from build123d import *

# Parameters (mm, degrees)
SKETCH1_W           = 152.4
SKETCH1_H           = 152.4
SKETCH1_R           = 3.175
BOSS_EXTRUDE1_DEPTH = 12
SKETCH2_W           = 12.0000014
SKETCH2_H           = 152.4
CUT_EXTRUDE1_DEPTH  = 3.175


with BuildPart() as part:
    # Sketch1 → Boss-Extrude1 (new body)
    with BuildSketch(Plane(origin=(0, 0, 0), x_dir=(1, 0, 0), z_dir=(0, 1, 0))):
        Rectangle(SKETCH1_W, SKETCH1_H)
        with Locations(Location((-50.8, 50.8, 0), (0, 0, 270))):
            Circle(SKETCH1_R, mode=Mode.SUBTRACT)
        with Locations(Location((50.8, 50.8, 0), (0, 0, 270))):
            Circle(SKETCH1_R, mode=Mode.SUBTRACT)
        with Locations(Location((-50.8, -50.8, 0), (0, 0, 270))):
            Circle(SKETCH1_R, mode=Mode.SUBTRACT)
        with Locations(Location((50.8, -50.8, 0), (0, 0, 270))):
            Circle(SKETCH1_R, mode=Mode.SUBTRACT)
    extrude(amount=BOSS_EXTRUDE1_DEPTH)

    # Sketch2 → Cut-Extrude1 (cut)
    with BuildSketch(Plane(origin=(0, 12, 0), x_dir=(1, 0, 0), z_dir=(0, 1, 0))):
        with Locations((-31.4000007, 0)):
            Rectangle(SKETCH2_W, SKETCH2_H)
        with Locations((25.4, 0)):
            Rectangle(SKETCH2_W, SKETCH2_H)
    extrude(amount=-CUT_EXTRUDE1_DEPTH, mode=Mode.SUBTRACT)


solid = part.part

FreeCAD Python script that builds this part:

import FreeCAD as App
import Part
import Sketcher

V = App.Vector
Q = App.Units.Quantity

doc = App.newDocument("Part")
body = doc.addObject("PartDesign::Body", "Body")

# Sketch on XZ plane
sketch1 = body.newObject("Sketcher::SketchObject", "Sketch")
sketch1.AttachmentSupport = (doc.getObject("XZ_Plane"), [""])
sketch1.MapMode = "FlatFace"
sketch1.addGeometry(Part.LineSegment(V(-76.2, -76.2, 0), V(-76.2, 76.2, 0)), False)
sketch1.addGeometry(Part.LineSegment(V(-76.2, 76.2, 0), V(76.2, 76.2, 0)), False)
sketch1.addGeometry(Part.LineSegment(V(76.2, 76.2, 0), V(76.2, -76.2, 0)), False)
sketch1.addGeometry(Part.LineSegment(V(76.2, -76.2, 0), V(-76.2, -76.2, 0)), False)
sketch1.addGeometry(Part.Circle(V(-50.8, 50.8, 0), V(0, 0, 1), 3.2), False)
sketch1.addGeometry(Part.Circle(V(50.8, 50.8, 0), V(0, 0, 1), 3.2), False)
sketch1.addGeometry(Part.Circle(V(-50.8, -50.8, 0), V(0, 0, 1), 3.2), False)
sketch1.addGeometry(Part.Circle(V(50.8, -50.8, 0), V(0, 0, 1), 3.2), False)
sketch1.addConstraint(Sketcher.Constraint("Coincident", 0, 2, 1, 1))
sketch1.addConstraint(Sketcher.Constraint("Coincident", 1, 2, 2, 1))
sketch1.addConstraint(Sketcher.Constraint("Coincident", 2, 2, 3, 1))
sketch1.addConstraint(Sketcher.Constraint("Coincident", 3, 2, 0, 1))
sketch1.addConstraint(Sketcher.Constraint("Vertical", 0))
sketch1.addConstraint(Sketcher.Constraint("Horizontal", 1))
sketch1.addConstraint(Sketcher.Constraint("Vertical", 2))
sketch1.addConstraint(Sketcher.Constraint("Horizontal", 3))
sketch1.addConstraint(Sketcher.Constraint("Equal", 4, 5))
sketch1.addConstraint(Sketcher.Constraint("Equal", 5, 6))
sketch1.addConstraint(Sketcher.Constraint("Equal", 6, 7))
sketch1.addConstraint(Sketcher.Constraint("Symmetric", 5, 3, 6, 3, -1, 1))
sketch1.addConstraint(Sketcher.Constraint("Symmetric", 4, 3, 7, 3, -1, 1))
sketch1.addConstraint(Sketcher.Constraint("Symmetric", 0, 2, 2, 2, -1, 1))
sketch1.addConstraint(Sketcher.Constraint("Symmetric", 4, 3, 5, 3, -2))
sketch1.addConstraint(Sketcher.Constraint("Equal", 3, 0))
sketch1.addConstraint(Sketcher.Constraint("Diameter", 4, Q("0.25 in")))
sketch1.addConstraint(Sketcher.Constraint("DistanceX", 1, 1, 1, 2, Q("6 in")))
sketch1.addConstraint(Sketcher.Constraint("DistanceX", 4, 3, -1, 1, Q("2 in")))
sketch1.addConstraint(Sketcher.Constraint("DistanceY", -1, 1, 4, 3, Q("2 in")))
pad1 = body.newObject("PartDesign::Pad", "Pad")
pad1.Profile = sketch1
pad1.Length = 12
pad1.Reversed = True

# Sketch on XZ plane
sketch2 = body.newObject("Sketcher::SketchObject", "Sketch001")
sketch2.AttachmentSupport = (doc.getObject("XZ_Plane"), [""])
sketch2.MapMode = "FlatFace"
sketch2.AttachmentOffset = App.Placement(V(0, 0, -12), App.Rotation())
sketch2.addGeometry(Part.LineSegment(V(-37, -76, 0), V(-37, 76, 0)), False)
sketch2.addGeometry(Part.LineSegment(V(-37, 76, 0), V(-25, 76, 0)), False)
sketch2.addGeometry(Part.LineSegment(V(-25, 76, 0), V(-25, -76, 0)), False)
sketch2.addGeometry(Part.LineSegment(V(-25, -76, 0), V(-37, -76, 0)), False)
sketch2.addGeometry(Part.LineSegment(V(19, -76, 0), V(19, 76, 0)), False)
sketch2.addGeometry(Part.LineSegment(V(19, 76, 0), V(31, 76, 0)), False)
sketch2.addGeometry(Part.LineSegment(V(31, 76, 0), V(31, -76, 0)), False)
sketch2.addGeometry(Part.LineSegment(V(31, -76, 0), V(19, -76, 0)), False)
sketch2.addConstraint(Sketcher.Constraint("Coincident", 0, 2, 1, 1))
sketch2.addConstraint(Sketcher.Constraint("Coincident", 1, 2, 2, 1))
sketch2.addConstraint(Sketcher.Constraint("Coincident", 2, 2, 3, 1))
sketch2.addConstraint(Sketcher.Constraint("Coincident", 3, 2, 0, 1))
sketch2.addConstraint(Sketcher.Constraint("Coincident", 4, 2, 5, 1))
sketch2.addConstraint(Sketcher.Constraint("Coincident", 5, 2, 6, 1))
sketch2.addConstraint(Sketcher.Constraint("Coincident", 6, 2, 7, 1))
sketch2.addConstraint(Sketcher.Constraint("Coincident", 7, 2, 4, 1))
sketch2.addConstraint(Sketcher.Constraint("Vertical", 0))
sketch2.addConstraint(Sketcher.Constraint("Horizontal", 1))
sketch2.addConstraint(Sketcher.Constraint("Vertical", 2))
sketch2.addConstraint(Sketcher.Constraint("Horizontal", 3))
sketch2.addConstraint(Sketcher.Constraint("Vertical", 4))
sketch2.addConstraint(Sketcher.Constraint("Horizontal", 5))
sketch2.addConstraint(Sketcher.Constraint("Vertical", 6))
sketch2.addConstraint(Sketcher.Constraint("Horizontal", 7))
sketch2.addConstraint(Sketcher.Constraint("Horizontal", 1, 2, 4, 2))
sketch2.addConstraint(Sketcher.Constraint("Horizontal", 3, 2, 6, 2))
sketch2.addConstraint(Sketcher.Constraint("Equal", 3, 5))
sketch2.addConstraint(Sketcher.Constraint("DistanceY", 0, 1, 0, 2, Q("6 in")))
sketch2.addConstraint(Sketcher.Constraint("DistanceY", -1, 1, 0, 2, Q("3 in")))
sketch2.addConstraint(Sketcher.Constraint("DistanceX", 1, 2, -1, 1, Q("1 in")))
sketch2.addConstraint(Sketcher.Constraint("DistanceX", 1, 1, 1, 2, Q("12.000001 mm")))
sketch2.addConstraint(Sketcher.Constraint("DistanceX", -1, 1, 4, 2, Q("19.399999 mm")))
pocket1 = body.newObject("PartDesign::Pocket", "Pocket")
pocket1.Profile = sketch2
pocket1.Length = Q("0.125 in")
pocket1.Reversed = True

doc.recompute()
